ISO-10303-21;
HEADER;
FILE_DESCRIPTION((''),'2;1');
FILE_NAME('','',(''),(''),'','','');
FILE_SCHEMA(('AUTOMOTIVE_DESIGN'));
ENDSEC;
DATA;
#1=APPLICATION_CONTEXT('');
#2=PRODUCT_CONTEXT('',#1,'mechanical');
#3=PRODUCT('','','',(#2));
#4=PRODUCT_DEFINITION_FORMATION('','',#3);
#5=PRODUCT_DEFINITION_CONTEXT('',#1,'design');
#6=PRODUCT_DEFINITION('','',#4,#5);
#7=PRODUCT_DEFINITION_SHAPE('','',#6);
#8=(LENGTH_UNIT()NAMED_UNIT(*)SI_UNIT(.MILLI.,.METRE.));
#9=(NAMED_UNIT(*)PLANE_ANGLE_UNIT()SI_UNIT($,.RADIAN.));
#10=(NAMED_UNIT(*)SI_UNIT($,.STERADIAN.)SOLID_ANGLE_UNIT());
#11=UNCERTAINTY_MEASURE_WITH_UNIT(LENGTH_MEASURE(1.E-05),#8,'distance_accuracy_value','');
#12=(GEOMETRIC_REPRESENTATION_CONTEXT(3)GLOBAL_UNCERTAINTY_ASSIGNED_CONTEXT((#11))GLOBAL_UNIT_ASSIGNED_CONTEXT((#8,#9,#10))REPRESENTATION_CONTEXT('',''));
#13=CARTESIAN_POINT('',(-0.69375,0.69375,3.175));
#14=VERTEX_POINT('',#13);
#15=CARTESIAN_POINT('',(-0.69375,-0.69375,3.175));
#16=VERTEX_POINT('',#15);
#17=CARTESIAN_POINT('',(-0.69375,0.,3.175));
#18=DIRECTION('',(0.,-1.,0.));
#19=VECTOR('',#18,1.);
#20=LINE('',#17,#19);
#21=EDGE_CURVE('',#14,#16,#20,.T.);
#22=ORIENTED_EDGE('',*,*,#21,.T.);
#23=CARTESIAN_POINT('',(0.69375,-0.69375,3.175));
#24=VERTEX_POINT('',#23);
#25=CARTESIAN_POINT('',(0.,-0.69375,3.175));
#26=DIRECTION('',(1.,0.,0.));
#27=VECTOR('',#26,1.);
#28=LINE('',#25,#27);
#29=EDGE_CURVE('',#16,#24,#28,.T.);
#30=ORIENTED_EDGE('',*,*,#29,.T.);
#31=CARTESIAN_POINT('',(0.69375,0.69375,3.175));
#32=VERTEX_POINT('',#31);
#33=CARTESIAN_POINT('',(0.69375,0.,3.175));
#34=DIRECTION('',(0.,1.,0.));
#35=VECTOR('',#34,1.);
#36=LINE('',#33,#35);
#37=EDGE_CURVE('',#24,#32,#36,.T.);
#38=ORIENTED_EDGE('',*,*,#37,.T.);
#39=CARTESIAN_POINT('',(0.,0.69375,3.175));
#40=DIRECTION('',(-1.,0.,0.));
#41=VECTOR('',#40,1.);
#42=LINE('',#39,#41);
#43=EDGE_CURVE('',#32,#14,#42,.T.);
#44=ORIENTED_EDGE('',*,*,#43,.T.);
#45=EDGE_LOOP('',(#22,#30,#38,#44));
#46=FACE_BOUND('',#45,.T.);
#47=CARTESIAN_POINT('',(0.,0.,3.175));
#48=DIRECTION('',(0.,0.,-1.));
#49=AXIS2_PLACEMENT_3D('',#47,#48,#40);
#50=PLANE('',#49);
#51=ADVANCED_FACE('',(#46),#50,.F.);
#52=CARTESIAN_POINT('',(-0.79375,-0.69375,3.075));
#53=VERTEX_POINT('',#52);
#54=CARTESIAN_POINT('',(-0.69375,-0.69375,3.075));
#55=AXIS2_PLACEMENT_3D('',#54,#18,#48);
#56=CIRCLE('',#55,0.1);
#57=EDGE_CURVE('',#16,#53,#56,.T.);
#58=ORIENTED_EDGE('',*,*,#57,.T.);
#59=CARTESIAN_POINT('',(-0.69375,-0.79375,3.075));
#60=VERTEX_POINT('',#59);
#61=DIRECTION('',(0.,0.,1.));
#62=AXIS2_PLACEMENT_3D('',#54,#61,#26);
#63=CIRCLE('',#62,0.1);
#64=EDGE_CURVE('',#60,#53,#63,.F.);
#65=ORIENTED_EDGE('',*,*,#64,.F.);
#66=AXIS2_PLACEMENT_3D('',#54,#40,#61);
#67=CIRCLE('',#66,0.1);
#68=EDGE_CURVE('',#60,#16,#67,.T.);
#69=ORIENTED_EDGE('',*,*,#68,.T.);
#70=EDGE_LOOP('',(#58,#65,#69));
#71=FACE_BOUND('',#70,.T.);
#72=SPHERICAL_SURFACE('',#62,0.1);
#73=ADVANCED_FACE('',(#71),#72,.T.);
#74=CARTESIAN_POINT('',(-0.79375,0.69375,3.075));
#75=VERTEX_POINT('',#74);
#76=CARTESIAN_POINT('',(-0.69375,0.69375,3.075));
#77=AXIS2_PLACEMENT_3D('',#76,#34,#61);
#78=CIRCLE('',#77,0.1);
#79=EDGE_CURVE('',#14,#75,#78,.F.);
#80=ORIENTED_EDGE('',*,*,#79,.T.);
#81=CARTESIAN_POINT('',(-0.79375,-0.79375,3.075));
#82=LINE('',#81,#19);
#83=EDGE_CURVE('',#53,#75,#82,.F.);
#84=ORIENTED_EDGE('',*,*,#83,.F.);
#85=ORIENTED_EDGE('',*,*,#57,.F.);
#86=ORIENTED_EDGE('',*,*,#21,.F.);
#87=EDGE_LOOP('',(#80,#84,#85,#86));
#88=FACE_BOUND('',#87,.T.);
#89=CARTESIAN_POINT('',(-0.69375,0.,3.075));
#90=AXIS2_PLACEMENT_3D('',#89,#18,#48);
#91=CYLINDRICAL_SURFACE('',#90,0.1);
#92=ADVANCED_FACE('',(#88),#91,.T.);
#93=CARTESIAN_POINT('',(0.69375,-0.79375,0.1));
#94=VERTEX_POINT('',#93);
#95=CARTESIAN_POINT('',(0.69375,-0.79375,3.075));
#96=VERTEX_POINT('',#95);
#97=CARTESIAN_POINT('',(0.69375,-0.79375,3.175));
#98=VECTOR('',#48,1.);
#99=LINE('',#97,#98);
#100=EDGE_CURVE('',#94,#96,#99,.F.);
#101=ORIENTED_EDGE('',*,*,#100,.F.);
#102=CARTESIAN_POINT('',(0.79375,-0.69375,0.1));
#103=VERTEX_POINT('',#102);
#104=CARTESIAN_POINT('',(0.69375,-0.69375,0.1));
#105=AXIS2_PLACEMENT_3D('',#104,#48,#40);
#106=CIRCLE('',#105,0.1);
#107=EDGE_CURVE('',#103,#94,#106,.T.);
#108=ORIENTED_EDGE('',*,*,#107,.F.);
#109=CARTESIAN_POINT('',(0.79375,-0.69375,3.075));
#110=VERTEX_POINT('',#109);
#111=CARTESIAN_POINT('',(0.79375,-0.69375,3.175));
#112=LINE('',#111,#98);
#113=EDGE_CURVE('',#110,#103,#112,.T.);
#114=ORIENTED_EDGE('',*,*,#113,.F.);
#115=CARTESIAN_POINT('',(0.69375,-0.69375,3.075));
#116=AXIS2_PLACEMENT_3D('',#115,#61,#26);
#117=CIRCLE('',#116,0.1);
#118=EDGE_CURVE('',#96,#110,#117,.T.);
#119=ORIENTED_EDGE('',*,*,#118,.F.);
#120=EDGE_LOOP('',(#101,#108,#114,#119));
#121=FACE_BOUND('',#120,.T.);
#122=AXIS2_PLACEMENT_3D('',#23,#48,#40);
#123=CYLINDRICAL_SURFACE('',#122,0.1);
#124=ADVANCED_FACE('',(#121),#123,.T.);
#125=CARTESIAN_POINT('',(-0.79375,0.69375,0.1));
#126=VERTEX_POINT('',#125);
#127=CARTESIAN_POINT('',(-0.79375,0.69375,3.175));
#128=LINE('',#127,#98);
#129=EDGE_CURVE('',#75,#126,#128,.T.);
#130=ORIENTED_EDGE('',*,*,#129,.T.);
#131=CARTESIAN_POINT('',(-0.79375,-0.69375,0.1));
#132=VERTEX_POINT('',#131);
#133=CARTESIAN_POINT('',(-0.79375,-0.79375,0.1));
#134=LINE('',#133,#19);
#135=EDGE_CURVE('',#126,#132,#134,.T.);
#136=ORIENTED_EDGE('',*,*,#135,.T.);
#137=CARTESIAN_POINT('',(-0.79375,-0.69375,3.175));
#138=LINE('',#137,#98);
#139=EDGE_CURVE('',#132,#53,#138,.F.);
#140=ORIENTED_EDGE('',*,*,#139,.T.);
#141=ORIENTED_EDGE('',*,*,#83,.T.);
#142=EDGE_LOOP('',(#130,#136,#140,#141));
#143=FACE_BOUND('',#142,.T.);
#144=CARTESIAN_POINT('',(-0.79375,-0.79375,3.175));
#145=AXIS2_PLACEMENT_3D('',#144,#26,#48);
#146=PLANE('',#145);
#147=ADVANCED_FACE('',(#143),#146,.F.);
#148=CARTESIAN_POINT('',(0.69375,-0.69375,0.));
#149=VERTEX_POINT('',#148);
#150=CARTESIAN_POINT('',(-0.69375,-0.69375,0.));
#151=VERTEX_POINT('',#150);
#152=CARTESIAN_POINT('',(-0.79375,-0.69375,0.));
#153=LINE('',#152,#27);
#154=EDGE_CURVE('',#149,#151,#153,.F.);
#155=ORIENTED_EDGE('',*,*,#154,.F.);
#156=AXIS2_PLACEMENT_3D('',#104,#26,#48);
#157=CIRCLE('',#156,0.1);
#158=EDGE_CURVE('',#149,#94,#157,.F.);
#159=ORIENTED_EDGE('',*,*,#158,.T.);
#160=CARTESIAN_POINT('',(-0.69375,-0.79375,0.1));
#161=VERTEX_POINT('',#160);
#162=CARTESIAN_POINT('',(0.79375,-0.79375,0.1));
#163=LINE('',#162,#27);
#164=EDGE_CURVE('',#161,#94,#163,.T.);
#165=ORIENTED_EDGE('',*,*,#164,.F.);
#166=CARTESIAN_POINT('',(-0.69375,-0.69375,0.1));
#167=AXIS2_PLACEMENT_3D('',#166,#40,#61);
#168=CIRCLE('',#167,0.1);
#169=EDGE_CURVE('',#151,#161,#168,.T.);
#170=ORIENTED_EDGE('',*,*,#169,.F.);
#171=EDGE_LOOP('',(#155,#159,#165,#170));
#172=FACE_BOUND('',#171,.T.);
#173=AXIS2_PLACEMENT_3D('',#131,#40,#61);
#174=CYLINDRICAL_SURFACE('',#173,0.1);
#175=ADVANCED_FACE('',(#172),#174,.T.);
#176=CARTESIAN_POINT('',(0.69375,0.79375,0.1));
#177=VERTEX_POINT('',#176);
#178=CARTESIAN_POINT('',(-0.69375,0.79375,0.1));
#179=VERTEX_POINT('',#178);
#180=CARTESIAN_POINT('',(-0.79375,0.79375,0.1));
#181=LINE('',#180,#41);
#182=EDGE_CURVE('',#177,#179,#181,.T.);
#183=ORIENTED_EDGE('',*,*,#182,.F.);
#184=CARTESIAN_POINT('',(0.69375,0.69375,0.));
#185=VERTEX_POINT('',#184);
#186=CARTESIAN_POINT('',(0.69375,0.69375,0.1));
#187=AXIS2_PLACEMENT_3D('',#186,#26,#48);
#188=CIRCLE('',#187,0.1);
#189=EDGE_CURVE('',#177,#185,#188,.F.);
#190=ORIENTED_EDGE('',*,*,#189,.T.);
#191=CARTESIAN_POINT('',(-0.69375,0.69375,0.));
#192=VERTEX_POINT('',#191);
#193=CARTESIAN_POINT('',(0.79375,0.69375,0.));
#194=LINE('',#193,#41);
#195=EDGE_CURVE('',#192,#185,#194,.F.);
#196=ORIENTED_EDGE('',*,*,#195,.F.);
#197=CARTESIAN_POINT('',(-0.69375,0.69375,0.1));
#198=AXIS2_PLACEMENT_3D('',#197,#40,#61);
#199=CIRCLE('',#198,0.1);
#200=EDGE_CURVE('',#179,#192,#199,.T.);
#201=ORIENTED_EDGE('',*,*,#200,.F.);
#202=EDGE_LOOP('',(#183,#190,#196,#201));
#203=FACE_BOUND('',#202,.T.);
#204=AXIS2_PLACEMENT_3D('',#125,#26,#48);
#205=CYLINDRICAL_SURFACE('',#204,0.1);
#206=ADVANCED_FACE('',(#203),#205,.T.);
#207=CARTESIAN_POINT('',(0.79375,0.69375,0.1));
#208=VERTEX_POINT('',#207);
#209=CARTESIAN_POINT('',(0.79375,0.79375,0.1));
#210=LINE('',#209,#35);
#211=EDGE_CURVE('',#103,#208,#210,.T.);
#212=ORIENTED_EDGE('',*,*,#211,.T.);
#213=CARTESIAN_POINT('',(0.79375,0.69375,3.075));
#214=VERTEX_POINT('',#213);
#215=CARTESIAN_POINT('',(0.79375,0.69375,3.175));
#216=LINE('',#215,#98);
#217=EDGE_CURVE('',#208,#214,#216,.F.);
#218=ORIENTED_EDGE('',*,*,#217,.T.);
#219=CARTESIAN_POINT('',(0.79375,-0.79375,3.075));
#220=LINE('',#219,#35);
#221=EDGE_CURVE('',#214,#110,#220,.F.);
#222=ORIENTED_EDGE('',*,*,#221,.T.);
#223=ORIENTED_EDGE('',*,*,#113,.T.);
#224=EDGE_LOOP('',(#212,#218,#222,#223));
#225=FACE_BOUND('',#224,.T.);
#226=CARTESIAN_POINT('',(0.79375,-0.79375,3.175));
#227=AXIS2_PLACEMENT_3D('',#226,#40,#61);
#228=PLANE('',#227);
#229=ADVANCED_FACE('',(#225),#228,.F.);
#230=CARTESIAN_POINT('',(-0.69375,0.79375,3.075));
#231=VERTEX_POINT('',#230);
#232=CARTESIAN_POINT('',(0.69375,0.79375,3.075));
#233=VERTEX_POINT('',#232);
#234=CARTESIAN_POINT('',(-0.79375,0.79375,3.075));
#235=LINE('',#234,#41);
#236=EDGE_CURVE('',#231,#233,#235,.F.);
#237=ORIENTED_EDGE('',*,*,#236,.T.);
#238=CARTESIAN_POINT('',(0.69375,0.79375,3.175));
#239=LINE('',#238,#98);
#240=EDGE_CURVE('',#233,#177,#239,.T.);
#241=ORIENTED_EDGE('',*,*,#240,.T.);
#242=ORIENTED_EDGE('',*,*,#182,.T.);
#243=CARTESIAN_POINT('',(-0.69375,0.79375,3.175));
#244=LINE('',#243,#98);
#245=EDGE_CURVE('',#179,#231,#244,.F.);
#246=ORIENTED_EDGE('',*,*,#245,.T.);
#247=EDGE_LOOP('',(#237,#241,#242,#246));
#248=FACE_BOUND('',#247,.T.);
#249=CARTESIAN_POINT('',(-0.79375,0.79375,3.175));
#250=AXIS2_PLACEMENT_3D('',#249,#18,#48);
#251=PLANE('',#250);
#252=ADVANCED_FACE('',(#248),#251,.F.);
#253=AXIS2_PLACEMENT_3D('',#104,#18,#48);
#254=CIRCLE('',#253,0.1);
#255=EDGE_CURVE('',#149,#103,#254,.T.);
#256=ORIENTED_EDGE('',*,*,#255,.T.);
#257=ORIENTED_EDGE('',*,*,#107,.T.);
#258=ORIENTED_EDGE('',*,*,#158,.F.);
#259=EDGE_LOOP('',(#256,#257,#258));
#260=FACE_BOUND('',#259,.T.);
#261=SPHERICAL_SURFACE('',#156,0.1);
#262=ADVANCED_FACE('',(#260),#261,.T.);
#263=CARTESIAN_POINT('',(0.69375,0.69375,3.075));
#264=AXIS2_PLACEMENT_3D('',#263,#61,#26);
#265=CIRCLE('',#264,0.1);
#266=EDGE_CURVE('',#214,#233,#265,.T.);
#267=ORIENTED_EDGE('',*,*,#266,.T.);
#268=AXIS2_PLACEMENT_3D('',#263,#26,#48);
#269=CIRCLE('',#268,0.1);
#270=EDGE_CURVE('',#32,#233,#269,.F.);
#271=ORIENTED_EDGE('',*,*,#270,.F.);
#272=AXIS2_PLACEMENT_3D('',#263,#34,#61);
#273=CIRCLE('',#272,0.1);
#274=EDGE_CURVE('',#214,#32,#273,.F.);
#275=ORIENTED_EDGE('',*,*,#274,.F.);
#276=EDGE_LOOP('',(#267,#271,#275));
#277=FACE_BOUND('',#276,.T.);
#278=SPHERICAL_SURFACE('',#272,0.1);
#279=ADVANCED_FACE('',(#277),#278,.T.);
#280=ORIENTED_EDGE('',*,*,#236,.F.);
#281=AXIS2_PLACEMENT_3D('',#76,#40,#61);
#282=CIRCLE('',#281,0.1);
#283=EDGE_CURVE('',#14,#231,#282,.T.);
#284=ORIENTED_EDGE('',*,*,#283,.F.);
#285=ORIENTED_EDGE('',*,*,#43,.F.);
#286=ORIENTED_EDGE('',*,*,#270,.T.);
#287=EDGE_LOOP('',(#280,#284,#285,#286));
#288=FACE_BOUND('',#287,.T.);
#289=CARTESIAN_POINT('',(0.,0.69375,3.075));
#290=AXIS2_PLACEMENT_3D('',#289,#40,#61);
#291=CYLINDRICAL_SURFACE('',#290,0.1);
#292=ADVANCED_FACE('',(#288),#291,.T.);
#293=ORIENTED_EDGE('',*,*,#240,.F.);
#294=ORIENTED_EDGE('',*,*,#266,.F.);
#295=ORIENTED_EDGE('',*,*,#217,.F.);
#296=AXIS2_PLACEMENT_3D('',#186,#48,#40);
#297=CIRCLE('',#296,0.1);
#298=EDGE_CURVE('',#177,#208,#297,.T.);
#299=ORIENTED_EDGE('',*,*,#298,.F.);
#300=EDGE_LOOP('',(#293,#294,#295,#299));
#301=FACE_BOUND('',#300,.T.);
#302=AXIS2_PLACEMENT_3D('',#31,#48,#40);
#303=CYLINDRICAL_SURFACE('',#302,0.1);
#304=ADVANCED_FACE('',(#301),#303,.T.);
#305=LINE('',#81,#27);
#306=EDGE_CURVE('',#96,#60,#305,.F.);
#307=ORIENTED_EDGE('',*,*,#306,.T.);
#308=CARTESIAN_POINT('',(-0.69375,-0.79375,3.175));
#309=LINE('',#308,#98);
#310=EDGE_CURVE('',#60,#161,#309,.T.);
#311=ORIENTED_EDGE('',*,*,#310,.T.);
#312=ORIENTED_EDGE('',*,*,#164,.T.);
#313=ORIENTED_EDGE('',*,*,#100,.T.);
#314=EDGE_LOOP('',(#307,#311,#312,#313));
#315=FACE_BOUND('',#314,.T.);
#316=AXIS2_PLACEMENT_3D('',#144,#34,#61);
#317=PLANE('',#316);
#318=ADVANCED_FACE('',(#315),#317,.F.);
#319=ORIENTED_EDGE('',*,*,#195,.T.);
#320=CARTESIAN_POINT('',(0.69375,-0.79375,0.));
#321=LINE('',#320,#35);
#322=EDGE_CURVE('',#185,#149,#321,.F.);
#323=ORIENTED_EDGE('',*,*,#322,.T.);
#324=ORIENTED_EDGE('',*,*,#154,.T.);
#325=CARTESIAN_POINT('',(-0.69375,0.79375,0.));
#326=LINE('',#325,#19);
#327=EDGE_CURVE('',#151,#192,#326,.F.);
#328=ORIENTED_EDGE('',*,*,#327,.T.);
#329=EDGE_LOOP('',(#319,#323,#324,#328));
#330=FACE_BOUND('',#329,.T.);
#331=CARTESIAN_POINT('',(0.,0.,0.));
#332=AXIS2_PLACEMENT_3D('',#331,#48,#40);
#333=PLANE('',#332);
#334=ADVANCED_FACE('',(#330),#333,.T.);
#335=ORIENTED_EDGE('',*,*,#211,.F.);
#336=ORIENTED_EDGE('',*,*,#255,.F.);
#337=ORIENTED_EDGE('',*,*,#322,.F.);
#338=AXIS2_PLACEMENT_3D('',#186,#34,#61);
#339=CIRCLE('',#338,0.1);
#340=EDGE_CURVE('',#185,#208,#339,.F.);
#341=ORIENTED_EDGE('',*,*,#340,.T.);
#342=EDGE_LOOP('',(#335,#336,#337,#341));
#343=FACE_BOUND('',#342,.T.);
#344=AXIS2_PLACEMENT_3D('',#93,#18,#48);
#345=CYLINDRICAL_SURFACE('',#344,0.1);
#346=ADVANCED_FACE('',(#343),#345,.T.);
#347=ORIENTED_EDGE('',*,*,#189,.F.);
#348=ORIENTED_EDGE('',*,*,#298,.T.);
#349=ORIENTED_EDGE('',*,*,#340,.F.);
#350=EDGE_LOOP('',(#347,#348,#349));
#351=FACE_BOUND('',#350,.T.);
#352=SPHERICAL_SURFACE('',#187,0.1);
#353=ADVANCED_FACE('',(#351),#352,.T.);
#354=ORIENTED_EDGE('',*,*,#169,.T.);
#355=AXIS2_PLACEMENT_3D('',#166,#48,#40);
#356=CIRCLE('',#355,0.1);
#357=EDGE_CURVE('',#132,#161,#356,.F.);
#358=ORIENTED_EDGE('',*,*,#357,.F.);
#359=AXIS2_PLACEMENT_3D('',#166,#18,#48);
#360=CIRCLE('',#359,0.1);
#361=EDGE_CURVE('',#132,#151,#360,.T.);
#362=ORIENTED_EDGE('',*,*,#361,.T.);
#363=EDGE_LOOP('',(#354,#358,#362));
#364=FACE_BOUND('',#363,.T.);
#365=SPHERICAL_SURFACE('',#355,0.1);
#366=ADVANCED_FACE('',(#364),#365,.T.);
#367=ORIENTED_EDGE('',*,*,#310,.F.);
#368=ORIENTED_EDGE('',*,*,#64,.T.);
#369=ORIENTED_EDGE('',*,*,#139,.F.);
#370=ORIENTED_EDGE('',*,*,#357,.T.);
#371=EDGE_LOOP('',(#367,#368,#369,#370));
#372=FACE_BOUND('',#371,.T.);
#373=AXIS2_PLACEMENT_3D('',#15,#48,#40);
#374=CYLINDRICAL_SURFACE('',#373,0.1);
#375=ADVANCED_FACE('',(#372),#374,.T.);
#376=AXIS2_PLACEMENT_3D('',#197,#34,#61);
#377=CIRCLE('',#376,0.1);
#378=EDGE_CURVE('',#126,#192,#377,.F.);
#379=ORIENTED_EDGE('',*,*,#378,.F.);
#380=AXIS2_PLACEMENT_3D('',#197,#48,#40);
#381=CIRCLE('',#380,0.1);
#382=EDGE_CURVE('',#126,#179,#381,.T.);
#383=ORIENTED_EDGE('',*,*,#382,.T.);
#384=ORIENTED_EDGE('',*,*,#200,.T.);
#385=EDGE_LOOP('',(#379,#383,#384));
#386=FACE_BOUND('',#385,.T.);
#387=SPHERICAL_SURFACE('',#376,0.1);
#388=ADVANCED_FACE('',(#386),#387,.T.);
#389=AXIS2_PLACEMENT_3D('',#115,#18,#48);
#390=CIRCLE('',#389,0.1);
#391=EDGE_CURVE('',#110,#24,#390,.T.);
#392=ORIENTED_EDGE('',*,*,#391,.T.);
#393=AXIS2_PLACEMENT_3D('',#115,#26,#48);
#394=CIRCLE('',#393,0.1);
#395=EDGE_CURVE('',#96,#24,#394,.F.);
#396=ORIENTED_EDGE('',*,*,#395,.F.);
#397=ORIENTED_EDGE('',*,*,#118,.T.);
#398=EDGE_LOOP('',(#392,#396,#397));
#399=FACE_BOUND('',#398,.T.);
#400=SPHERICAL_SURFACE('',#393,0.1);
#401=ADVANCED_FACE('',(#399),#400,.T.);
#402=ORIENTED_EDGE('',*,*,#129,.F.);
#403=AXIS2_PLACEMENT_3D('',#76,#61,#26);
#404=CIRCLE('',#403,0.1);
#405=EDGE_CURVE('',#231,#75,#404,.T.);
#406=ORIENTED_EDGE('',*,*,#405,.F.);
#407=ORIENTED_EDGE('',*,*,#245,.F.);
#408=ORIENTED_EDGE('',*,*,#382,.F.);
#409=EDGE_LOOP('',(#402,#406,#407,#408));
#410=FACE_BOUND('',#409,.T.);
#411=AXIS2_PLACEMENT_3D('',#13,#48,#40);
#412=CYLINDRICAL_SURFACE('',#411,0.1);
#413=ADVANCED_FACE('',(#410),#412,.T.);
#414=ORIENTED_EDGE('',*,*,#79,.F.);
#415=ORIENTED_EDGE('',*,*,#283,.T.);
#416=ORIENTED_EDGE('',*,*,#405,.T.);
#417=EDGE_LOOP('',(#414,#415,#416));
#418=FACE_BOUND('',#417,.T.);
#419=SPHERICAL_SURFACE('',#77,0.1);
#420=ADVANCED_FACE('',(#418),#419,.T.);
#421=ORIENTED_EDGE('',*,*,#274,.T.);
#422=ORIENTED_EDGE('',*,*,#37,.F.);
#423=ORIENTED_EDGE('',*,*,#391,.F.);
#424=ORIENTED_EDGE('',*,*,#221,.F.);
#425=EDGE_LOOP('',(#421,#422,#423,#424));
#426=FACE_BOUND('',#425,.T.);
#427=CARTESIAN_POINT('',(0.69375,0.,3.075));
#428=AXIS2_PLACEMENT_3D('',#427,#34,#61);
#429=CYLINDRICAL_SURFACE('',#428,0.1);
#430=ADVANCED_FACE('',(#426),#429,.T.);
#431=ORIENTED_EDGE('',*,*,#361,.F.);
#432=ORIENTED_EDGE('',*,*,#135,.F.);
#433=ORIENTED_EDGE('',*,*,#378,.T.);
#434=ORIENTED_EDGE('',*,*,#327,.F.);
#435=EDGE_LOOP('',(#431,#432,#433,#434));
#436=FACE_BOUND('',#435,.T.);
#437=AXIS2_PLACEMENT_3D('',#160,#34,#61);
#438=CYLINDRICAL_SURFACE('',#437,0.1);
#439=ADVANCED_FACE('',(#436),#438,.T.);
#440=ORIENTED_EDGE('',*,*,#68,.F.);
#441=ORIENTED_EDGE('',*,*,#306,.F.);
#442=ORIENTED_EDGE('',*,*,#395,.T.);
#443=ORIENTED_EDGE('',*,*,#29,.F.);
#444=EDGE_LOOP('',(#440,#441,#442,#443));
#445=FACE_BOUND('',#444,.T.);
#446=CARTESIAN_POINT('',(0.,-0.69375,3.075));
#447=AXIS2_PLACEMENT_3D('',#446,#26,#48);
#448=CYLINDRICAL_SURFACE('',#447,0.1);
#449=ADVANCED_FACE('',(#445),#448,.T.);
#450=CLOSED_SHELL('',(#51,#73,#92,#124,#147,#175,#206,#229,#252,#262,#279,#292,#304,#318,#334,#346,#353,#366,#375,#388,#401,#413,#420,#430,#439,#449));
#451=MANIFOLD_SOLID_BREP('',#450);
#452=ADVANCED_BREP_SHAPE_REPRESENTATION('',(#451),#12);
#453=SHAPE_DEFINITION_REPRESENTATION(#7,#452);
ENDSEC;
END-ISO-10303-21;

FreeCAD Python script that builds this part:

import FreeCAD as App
import Part
import Sketcher

V = App.Vector
Q = App.Units.Quantity

doc = App.newDocument("Part")
body = doc.addObject("PartDesign::Body", "Body")

# Sketch on XY plane
sketch1 = body.newObject("Sketcher::SketchObject", "Sketch")
sketch1.AttachmentSupport = (doc.getObject("XY_Plane"), [""])
sketch1.MapMode = "FlatFace"
sketch1.addGeometry([
    Part.LineSegment(V(-0.8, 0.8, 0), V(-0.8, -0.8, 0)),
    Part.LineSegment(V(-0.8, -0.8, 0), V(0.8, -0.8, 0)),
    Part.LineSegment(V(0.8, -0.8, 0), V(0.8, 0.8, 0)),
    Part.LineSegment(V(0.8, 0.8, 0), V(-0.8, 0.8, 0)),
], False)
sketch1.addConstraint([
    Sketcher.Constraint("Coincident", 0, 2, 1, 1),
    Sketcher.Constraint("Coincident", 1, 2, 2, 1),
    Sketcher.Constraint("Coincident", 2, 2, 3, 1),
    Sketcher.Constraint("Coincident", 3, 2, 0, 1),
    Sketcher.Constraint("Vertical", 0),
    Sketcher.Constraint("Horizontal", 1),
    Sketcher.Constraint("Vertical", 2),
    Sketcher.Constraint("Horizontal", 3),
    Sketcher.Constraint("Symmetric", 0, 2, 2, 2, -1, 1),
    Sketcher.Constraint("Equal", 3, 0),
    Sketcher.Constraint("DistanceX", 1, 1, 1, 2, Q("0.0625 in")),
])
pad1 = body.newObject("PartDesign::Pad", "Pad")
pad1.Profile = sketch1
pad1.Length = Q("0.125 in")
doc.recompute()

fillet = body.newObject("PartDesign::Fillet", "Fillet")
fillet.Base = (pad1, ["Edge1"])
fillet.UseAllEdges = True
fillet.Radius = 0.1

doc.recompute()
